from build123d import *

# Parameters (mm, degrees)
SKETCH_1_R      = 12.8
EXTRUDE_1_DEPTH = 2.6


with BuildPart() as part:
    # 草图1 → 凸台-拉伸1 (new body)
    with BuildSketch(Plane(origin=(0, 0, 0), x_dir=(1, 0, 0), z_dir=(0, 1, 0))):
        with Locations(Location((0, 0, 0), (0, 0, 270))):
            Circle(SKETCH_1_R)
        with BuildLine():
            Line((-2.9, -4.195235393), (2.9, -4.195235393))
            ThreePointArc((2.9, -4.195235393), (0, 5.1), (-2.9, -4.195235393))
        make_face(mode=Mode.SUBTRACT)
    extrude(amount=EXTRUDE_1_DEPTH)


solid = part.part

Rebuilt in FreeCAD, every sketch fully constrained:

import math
import FreeCAD as App
import Part
import Sketcher
Q = App.Units.Quantity

doc = App.newDocument("Part")
body = doc.addObject("PartDesign::Body", "Body")

# Sketch on XZ plane
sketch1 = body.newObject("Sketcher::SketchObject", "Sketch")
sketch1.AttachmentSupport = (doc.getObject("XZ_Plane"), [""])
sketch1.MapMode = "FlatFace"
sketch1.addGeometry([
    Part.Circle(App.Vector(0, 0, 0), App.Vector(0, 0, 1), 13),
    Part.LineSegment(App.Vector(3, 4, 0), App.Vector(-3, 4, 0)),
    Part.ArcOfCircle(Part.Circle(App.Vector(0, 0, 0), App.Vector(0, 0, 1), 5), math.radians(125), math.radians(415)),
], False)
sketch1.addConstraint([
    Sketcher.Constraint("Coincident", 1, 1, 2, 2),
    Sketcher.Constraint("Coincident", 2, 1, 1, 2),
    Sketcher.Constraint("Horizontal", 1),
    Sketcher.Constraint("Coincident", 0, 3, -1, 1),
    Sketcher.Constraint("Coincident", 2, 3, -1, 1),
    Sketcher.Constraint("Diameter", 0, Q("25.6 mm")),
    Sketcher.Constraint("Radius", 2, Q("5.1 mm")),
    Sketcher.Constraint("DistanceX", 1, 2, 1, 1, Q("5.8 mm")),
])
pad1 = body.newObject("PartDesign::Pad", "Pad")
pad1.Profile = sketch1
pad1.Length = 2.6
pad1.Reversed = True

doc.recompute()
